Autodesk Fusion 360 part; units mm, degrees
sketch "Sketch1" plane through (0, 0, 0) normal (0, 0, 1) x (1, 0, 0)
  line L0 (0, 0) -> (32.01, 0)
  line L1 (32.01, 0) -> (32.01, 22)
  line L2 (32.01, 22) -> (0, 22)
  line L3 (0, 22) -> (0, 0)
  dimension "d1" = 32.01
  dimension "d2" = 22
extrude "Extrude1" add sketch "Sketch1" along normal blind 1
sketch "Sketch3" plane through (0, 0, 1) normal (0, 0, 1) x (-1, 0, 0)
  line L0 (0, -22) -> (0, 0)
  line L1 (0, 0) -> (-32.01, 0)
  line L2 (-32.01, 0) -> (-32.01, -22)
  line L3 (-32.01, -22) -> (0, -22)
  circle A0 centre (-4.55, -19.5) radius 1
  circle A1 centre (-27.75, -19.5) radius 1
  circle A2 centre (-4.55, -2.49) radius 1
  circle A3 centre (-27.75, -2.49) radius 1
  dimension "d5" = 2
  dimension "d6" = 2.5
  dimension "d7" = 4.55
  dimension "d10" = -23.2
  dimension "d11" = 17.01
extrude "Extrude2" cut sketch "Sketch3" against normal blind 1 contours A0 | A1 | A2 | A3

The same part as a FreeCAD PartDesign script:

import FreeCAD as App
import Part
import Sketcher


def add_polygon(sketch, points):
    """Adds a closed chain of lines whose ends are joined by coincident constraints."""
    first, n = sketch.GeometryCount, len(points)
    for a, b in zip(points, points[1:] + points[:1]):
        sketch.addGeometry(Part.LineSegment(App.Vector(*a, 0), App.Vector(*b, 0)), False)
    for i in range(n):
        sketch.addConstraint(Sketcher.Constraint("Coincident", first + i, 2, first + (i + 1) % n, 1))

doc = App.newDocument("Part")
body = doc.addObject("PartDesign::Body", "Body")

sketch1 = body.newObject("Sketcher::SketchObject", "Sketch")
sketch1.AttachmentSupport = (doc.getObject("XY_Plane"), [""])
sketch1.MapMode = "FlatFace"
add_polygon(sketch1, [(0, 22), (0, 0), (32.01, 0), (32.01, 22)])
sketch1.addConstraint([
    Sketcher.Constraint("Vertical", 0),
    Sketcher.Constraint("Horizontal", 1),
    Sketcher.Constraint("Vertical", 2),
    Sketcher.Constraint("Horizontal", 3),
    Sketcher.Constraint("Coincident", 0, 2, -1, 1),
    Sketcher.Constraint("DistanceY", 0, 2, 0, 1, 22.0),
    Sketcher.Constraint("DistanceX", 1, 1, 1, 2, 32.01),
])
pad1 = body.newObject("PartDesign::Pad", "Pad")
pad1.Profile = sketch1
pad1.Length = 1

sketch2 = body.newObject("Sketcher::SketchObject", "Sketch001")
sketch2.AttachmentSupport = (doc.getObject("XY_Plane"), [""])
sketch2.MapMode = "FlatFace"
sketch2.AttachmentOffset = App.Placement(App.Vector(0, 0, 1), App.Rotation())
sketch2.addGeometry([
    Part.Circle(App.Vector(4.55, 19.5, 0), App.Vector(0, 0, 1), 1),
    Part.Circle(App.Vector(27.75, 19.5, 0), App.Vector(0, 0, 1), 1),
    Part.Circle(App.Vector(4.55, 2.49, 0), App.Vector(0, 0, 1), 1),
    Part.Circle(App.Vector(27.75, 2.49, 0), App.Vector(0, 0, 1), 1),
], False)
sketch2.addConstraint([
    Sketcher.Constraint("Equal", 0, 1),
    Sketcher.Constraint("Equal", 1, 2),
    Sketcher.Constraint("Equal", 2, 3),
    Sketcher.Constraint("Horizontal", 0, 3, 1, 3),
    Sketcher.Constraint("Horizontal", 2, 3, 3, 3),
    Sketcher.Constraint("Vertical", 0, 3, 2, 3),
    Sketcher.Constraint("Vertical", 1, 3, 3, 3),
    Sketcher.Constraint("Diameter", 0, 2.0),
    Sketcher.Constraint("DistanceX", 0, 3, 1, 3, 23.2),
    Sketcher.Constraint("DistanceX", -1, 1, 0, 3, 4.55),
    Sketcher.Constraint("DistanceY", 2, 3, 0, 3, 17.01),
    Sketcher.Constraint("DistanceY", -1, 1, 0, 3, 19.5),
])
pocket1 = body.newObject("PartDesign::Pocket", "Pocket")
pocket1.Profile = sketch2
pocket1.Length = 1

doc.recompute()
